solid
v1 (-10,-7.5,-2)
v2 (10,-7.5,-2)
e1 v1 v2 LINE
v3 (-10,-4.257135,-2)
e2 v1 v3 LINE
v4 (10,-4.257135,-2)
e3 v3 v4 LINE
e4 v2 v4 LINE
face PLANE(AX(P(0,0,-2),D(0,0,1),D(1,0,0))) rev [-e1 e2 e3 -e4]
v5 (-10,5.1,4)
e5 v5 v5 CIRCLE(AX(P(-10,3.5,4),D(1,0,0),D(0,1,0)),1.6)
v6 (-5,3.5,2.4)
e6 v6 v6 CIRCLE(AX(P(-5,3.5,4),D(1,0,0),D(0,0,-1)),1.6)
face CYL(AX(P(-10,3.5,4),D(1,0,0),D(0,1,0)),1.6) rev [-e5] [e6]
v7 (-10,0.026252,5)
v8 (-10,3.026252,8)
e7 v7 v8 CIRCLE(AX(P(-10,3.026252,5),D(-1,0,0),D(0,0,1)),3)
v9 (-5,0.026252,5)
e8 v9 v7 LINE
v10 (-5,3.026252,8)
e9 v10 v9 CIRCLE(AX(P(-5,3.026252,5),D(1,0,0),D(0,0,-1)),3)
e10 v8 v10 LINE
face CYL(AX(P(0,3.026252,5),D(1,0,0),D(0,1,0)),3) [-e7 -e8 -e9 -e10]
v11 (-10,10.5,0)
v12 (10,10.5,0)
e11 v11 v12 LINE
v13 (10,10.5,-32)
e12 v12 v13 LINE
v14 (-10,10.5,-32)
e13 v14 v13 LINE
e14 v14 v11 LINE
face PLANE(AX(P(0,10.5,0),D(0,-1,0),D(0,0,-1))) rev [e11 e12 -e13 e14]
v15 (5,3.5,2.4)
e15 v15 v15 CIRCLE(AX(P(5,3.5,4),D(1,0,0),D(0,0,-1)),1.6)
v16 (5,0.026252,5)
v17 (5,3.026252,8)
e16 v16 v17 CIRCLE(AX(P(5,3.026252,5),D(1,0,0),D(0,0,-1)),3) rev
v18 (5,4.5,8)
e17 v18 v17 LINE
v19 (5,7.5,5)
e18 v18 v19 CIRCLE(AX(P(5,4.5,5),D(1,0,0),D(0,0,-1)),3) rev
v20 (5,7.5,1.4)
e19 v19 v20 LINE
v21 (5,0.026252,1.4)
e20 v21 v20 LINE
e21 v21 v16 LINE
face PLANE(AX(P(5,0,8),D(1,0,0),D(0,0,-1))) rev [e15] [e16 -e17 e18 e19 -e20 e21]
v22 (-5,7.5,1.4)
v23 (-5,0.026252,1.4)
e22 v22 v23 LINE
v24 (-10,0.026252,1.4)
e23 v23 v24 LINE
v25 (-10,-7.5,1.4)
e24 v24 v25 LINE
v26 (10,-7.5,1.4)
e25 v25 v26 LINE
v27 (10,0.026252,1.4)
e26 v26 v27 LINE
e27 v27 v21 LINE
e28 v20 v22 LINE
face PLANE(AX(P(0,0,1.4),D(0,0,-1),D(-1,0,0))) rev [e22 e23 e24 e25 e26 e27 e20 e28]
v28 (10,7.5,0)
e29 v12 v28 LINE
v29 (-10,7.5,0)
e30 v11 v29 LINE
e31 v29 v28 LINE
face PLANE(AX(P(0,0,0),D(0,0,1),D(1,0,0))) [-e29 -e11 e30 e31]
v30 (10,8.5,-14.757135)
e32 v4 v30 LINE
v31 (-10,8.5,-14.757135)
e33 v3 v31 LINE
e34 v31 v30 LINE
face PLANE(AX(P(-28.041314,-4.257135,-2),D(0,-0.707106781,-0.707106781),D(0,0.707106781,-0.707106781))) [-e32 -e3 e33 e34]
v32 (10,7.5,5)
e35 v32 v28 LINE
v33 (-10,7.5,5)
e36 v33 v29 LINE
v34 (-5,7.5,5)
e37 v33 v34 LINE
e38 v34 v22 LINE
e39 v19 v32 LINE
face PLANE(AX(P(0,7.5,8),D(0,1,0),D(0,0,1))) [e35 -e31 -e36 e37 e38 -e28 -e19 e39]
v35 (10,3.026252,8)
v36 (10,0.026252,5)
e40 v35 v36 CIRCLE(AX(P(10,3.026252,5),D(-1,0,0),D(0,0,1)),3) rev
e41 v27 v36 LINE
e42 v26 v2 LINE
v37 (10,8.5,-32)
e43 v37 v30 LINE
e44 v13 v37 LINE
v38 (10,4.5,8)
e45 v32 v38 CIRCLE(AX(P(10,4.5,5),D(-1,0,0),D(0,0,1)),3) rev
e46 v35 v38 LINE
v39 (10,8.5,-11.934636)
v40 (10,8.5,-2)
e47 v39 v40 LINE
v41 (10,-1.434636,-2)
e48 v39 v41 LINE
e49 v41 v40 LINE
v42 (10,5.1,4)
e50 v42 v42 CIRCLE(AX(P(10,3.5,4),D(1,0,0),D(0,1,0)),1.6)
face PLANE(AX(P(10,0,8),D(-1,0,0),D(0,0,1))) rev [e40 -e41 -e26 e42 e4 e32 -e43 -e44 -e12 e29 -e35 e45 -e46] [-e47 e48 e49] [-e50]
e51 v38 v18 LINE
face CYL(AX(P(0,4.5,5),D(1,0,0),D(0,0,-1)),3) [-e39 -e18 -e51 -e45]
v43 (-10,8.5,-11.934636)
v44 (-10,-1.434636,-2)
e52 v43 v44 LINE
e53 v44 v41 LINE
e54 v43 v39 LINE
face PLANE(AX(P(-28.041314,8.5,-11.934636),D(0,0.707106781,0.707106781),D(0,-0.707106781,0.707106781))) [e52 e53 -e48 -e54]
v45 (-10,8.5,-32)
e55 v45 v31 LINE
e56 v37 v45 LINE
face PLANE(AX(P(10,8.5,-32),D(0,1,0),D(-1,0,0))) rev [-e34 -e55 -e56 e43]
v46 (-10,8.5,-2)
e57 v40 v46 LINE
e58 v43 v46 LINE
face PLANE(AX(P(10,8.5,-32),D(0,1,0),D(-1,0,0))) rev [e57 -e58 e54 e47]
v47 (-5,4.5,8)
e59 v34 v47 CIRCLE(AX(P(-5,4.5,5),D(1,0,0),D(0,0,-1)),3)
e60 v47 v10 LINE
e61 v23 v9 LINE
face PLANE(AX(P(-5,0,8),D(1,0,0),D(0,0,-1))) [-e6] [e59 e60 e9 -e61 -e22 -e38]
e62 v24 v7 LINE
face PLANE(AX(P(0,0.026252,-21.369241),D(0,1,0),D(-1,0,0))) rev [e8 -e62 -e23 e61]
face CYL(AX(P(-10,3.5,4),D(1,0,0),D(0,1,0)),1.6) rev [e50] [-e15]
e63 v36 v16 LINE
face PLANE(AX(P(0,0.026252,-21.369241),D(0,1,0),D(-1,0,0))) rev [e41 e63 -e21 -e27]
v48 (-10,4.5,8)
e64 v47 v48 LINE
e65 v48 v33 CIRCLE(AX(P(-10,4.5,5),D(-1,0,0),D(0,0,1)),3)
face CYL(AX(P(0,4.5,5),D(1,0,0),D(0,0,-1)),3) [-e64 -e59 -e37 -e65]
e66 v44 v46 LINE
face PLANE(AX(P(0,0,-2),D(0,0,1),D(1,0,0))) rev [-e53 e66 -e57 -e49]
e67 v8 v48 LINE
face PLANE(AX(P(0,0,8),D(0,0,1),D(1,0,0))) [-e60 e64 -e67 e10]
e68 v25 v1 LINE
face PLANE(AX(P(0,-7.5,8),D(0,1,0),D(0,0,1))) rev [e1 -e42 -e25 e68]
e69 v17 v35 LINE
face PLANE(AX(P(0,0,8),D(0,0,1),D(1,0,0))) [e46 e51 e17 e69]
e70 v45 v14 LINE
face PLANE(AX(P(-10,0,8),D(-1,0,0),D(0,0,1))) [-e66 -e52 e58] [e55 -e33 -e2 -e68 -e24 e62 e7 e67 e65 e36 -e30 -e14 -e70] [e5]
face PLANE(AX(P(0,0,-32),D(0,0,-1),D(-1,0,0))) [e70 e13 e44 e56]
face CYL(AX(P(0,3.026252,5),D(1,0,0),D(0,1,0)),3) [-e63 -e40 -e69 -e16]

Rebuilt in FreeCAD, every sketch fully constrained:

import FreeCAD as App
import Part
import Sketcher
Q = App.Units.Quantity


def edges_at(feature, points):
    """Names of the edges that pass closest to the given points."""
    edges = feature.Shape.Edges
    near = lambda p: min(range(len(edges)), key=lambda i: edges[i].distToShape(Part.Vertex(*p))[0])
    return sorted({f"Edge{near(p) + 1}" for p in points})

doc = App.newDocument("Part")
body = doc.addObject("PartDesign::Body", "Body")

# Sketch on XY plane
sketch1 = doc.addObject("Sketcher::SketchObject", "Sketch")
body.addObject(sketch1)
sketch1.AttachmentSupport = (doc.XY_Plane, [""])
sketch1.MapMode = "FlatFace"
sketch1.addGeometry([
    Part.LineSegment(App.Vector(-10, 8, 0), App.Vector(-10, -8, 0)),  # 0
    Part.LineSegment(App.Vector(-10, -8, 0), App.Vector(10, -8, 0)),  # 1
    Part.LineSegment(App.Vector(10, -8, 0), App.Vector(10, 8, 0)),  # 2
    Part.LineSegment(App.Vector(10, 8, 0), App.Vector(5, 8, 0)),  # 3
    Part.LineSegment(App.Vector(5, 8, 0), App.Vector(5, 0, 0)),  # 4
    Part.LineSegment(App.Vector(5, 0, 0), App.Vector(-5, 0, 0)),  # 5
    Part.LineSegment(App.Vector(-5, 0, 0), App.Vector(-5, 8, 0)),  # 6
    Part.LineSegment(App.Vector(-5, 8, 0), App.Vector(-10, 8, 0)),  # 7
], False)
sketch1.addConstraint([
    Sketcher.Constraint("Coincident", 0, 2, 1, 1),
    Sketcher.Constraint("Coincident", 1, 2, 2, 1),
    Sketcher.Constraint("Coincident", 2, 2, 3, 1),
    Sketcher.Constraint("Coincident", 3, 2, 4, 1),
    Sketcher.Constraint("Coincident", 4, 2, 5, 1),
    Sketcher.Constraint("Coincident", 5, 2, 6, 1),
    Sketcher.Constraint("Coincident", 6, 2, 7, 1),
    Sketcher.Constraint("Coincident", 7, 2, 0, 1),
    Sketcher.Constraint("Vertical", 0),
    Sketcher.Constraint("Horizontal", 1),
    Sketcher.Constraint("Vertical", 2),
    Sketcher.Constraint("Horizontal", 3),
    Sketcher.Constraint("Vertical", 4),
    Sketcher.Constraint("Horizontal", 5),
    Sketcher.Constraint("Vertical", 6),
    Sketcher.Constraint("Horizontal", 7),
    Sketcher.Constraint("Symmetric", 0, 2, 2, 2, -1, 1),
    Sketcher.Constraint("Symmetric", 4, 2, 5, 2, -1, 1),
    Sketcher.Constraint("Horizontal", 3, 2, 6, 2),
    Sketcher.Constraint("DistanceX", 1, 1, 1, 2, Q("20 mm")),
    Sketcher.Constraint("DistanceX", 3, 2, 3, 1, Q("5 mm")),
    Sketcher.Constraint("DistanceY", 0, 2, 0, 1, Q("15 mm")),
])
pad1 = doc.addObject("PartDesign::Pad", "Pad")
body.addObject(pad1)
pad1.Profile = sketch1
pad1.Length = 8

# Sketch on XY plane
sketch2 = doc.addObject("Sketcher::SketchObject", "Sketch001")
body.addObject(sketch2)
sketch2.AttachmentSupport = (doc.XY_Plane, [""])
sketch2.MapMode = "FlatFace"
sketch2.addGeometry([
    Part.LineSegment(App.Vector(-10, 8, 0), App.Vector(-10, -8, 0)),
    Part.LineSegment(App.Vector(-10, -8, 0), App.Vector(10, -8, 0)),
    Part.LineSegment(App.Vector(10, -8, 0), App.Vector(10, 8, 0)),
    Part.LineSegment(App.Vector(10, 8, 0), App.Vector(-10, 8, 0)),
], False)
sketch2.addConstraint([
    Sketcher.Constraint("Coincident", 0, 2, 1, 1),
    Sketcher.Constraint("Coincident", 1, 2, 2, 1),
    Sketcher.Constraint("Coincident", 2, 2, 3, 1),
    Sketcher.Constraint("Coincident", 3, 2, 0, 1),
    Sketcher.Constraint("Vertical", 0),
    Sketcher.Constraint("Horizontal", 1),
    Sketcher.Constraint("Vertical", 2),
    Sketcher.Constraint("Horizontal", 3),
    Sketcher.Constraint("Symmetric", 0, 2, 2, 2, -1, 1),
    Sketcher.Constraint("DistanceX", 1, 1, 1, 2, Q("20 mm")),
    Sketcher.Constraint("DistanceY", 0, 2, 0, 1, Q("15 mm")),
])
pad2 = doc.addObject("PartDesign::Pad", "Pad001")
body.addObject(pad2)
pad2.Profile = sketch2
pad2.Length = 2
pad2.Reversed = True

# Sketch on YZ plane
sketch3 = doc.addObject("Sketcher::SketchObject", "Sketch002")
body.addObject(sketch3)
sketch3.AttachmentSupport = (doc.YZ_Plane, [""])
sketch3.MapMode = "FlatFace"
sketch3.AttachmentOffset = App.Placement(App.Vector(0, 0, 10), App.Rotation())
sketch3.addGeometry(Part.Circle(App.Vector(3.5, 4, 0), App.Vector(0, 0, 1), 1.6), False)
sketch3.addConstraint([
    Sketcher.Constraint("Diameter", 0, Q("3.2 mm")),
    Sketcher.Constraint("DistanceY", -1, 1, 0, 3, Q("4 mm")),
    Sketcher.Constraint("DistanceX", -1, 1, 0, 3, Q("3.5 mm")),
])
pocket1 = doc.addObject("PartDesign::Pocket", "Pocket")
body.addObject(pocket1)
pocket1.Profile = sketch3
pocket1.Type = "ThroughAll"

# Sketch on XY plane
sketch4 = doc.addObject("Sketcher::SketchObject", "Sketch003")
body.addObject(sketch4)
sketch4.AttachmentSupport = (doc.XY_Plane, [""])
sketch4.MapMode = "FlatFace"
sketch4.AttachmentOffset = App.Placement(App.Vector(0, 0, 8), App.Rotation())
sketch4.addGeometry([
    Part.LineSegment(App.Vector(10, -7.5, 0), App.Vector(10, 0.026, 0)),  # 0
    Part.LineSegment(App.Vector(10, 0.026, 0), App.Vector(5, 0.026, 0)),  # 1
    Part.LineSegment(App.Vector(5, 0.026, 0), App.Vector(5, 0, 0)),  # 2
    Part.LineSegment(App.Vector(5, 0, 0), App.Vector(-5, 0, 0)),  # 3
    Part.LineSegment(App.Vector(-5, 0, 0), App.Vector(-5, 0.026, 0)),  # 4
    Part.LineSegment(App.Vector(-5, 0.026, 0), App.Vector(-10, 0.026, 0)),  # 5
    Part.LineSegment(App.Vector(-10, 0.026, 0), App.Vector(-10, -7.5, 0)),  # 6
    Part.LineSegment(App.Vector(-10, -7.5, 0), App.Vector(10, -7.5, 0)),  # 7
], False)
sketch4.addConstraint([
    Sketcher.Constraint("Coincident", 0, 2, 1, 1),
    Sketcher.Constraint("Coincident", 1, 2, 2, 1),
    Sketcher.Constraint("Coincident", 2, 2, 3, 1),
    Sketcher.Constraint("Coincident", 3, 2, 4, 1),
    Sketcher.Constraint("Coincident", 4, 2, 5, 1),
    Sketcher.Constraint("Coincident", 5, 2, 6, 1),
    Sketcher.Constraint("Coincident", 6, 2, 7, 1),
    Sketcher.Constraint("Coincident", 7, 2, 0, 1),
    Sketcher.Constraint("Vertical", 0),
    Sketcher.Constraint("Horizontal", 1),
    Sketcher.Constraint("Vertical", 2),
    Sketcher.Constraint("Horizontal", 3),
    Sketcher.Constraint("Vertical", 4),
    Sketcher.Constraint("Horizontal", 5),
    Sketcher.Constraint("Vertical", 6),
    Sketcher.Constraint("Horizontal", 7),
    Sketcher.Constraint("Symmetric", 2, 2, 3, 2, -1, 1),
    Sketcher.Constraint("Symmetric", 0, 2, 5, 2, -2),
    Sketcher.Constraint("DistanceX", 1, 2, 1, 1, Q("5 mm")),
    Sketcher.Constraint("DistanceX", 3, 2, 3, 1, Q("10 mm")),
    Sketcher.Constraint("DistanceY", 6, 2, -1, 1, Q("7.5 mm")),
    Sketcher.Constraint("DistanceY", 0, 1, 0, 2, Q("7.526252 mm")),
])
pocket2 = doc.addObject("PartDesign::Pocket", "Pocket001")
body.addObject(pocket2)
pocket2.Profile = sketch4
pocket2.Length = 8
doc.recompute()

fillet = doc.addObject("PartDesign::Fillet", "Fillet")
body.addObject(fillet)
fillet.Base = (pocket2, edges_at(pocket2, [
    (-7.5, 7.5, 8),
    (7.5, 0.026, 8),
    (7.5, 7.5, 8),
    (-7.5, 0.026, 8),
]))
fillet.Radius = 3

# Sketch on XZ plane
sketch5 = doc.addObject("Sketcher::SketchObject", "Sketch004")
body.addObject(sketch5)
sketch5.AttachmentSupport = (doc.XZ_Plane, [""])
sketch5.MapMode = "FlatFace"
sketch5.AttachmentOffset = App.Placement(App.Vector(0, 0, -7.5), App.Rotation())
sketch5.addGeometry([
    Part.LineSegment(App.Vector(10, 0, 0), App.Vector(10, -2, 0)),
    Part.LineSegment(App.Vector(10, -2, 0), App.Vector(-10, -2, 0)),
    Part.LineSegment(App.Vector(-10, -2, 0), App.Vector(-10, 0, 0)),
    Part.LineSegment(App.Vector(-10, 0, 0), App.Vector(10, 0, 0)),
], False)
sketch5.addConstraint([
    Sketcher.Constraint("Coincident", 0, 2, 1, 1),
    Sketcher.Constraint("Coincident", 1, 2, 2, 1),
    Sketcher.Constraint("Coincident", 2, 2, 3, 1),
    Sketcher.Constraint("Coincident", 3, 2, 0, 1),
    Sketcher.Constraint("Vertical", 0),
    Sketcher.Constraint("Horizontal", 1),
    Sketcher.Constraint("Vertical", 2),
    Sketcher.Constraint("Horizontal", 3),
    Sketcher.Constraint("Symmetric", 2, 2, 3, 2, -1, 1),
    Sketcher.Constraint("DistanceX", 1, 2, 1, 1, Q("20 mm")),
    Sketcher.Constraint("DistanceY", 0, 2, 0, 1, Q("2 mm")),
])
pad3 = doc.addObject("PartDesign::Pad", "Pad002")
body.addObject(pad3)
pad3.Profile = sketch5
pad3.Length = 3
pad3.Reversed = True

# Sketch on XY plane
sketch6 = doc.addObject("Sketcher::SketchObject", "Sketch005")
body.addObject(sketch6)
sketch6.AttachmentSupport = (doc.XY_Plane, [""])
sketch6.MapMode = "FlatFace"
sketch6.AttachmentOffset = App.Placement(App.Vector(0, 0, -2), App.Rotation())
sketch6.addGeometry([
    Part.LineSegment(App.Vector(10, 10.5, 0), App.Vector(10, 8.5, 0)),
    Part.LineSegment(App.Vector(10, 8.5, 0), App.Vector(-10, 8.5, 0)),
    Part.LineSegment(App.Vector(-10, 8.5, 0), App.Vector(-10, 10.5, 0)),
    Part.LineSegment(App.Vector(-10, 10.5, 0), App.Vector(10, 10.5, 0)),
], False)
sketch6.addConstraint([
    Sketcher.Constraint("Coincident", 0, 2, 1, 1),
    Sketcher.Constraint("Coincident", 1, 2, 2, 1),
    Sketcher.Constraint("Coincident", 2, 2, 3, 1),
    Sketcher.Constraint("Coincident", 3, 2, 0, 1),
    Sketcher.Constraint("Vertical", 0),
    Sketcher.Constraint("Horizontal", 1),
    Sketcher.Constraint("Vertical", 2),
    Sketcher.Constraint("Horizontal", 3),
    Sketcher.Constraint("DistanceX", 1, 2, 1, 1, Q("20 mm")),
    Sketcher.Constraint("DistanceY", 0, 2, 0, 1, Q("2 mm")),
    Sketcher.Constraint("DistanceX", -1, 1, 0, 2, Q("10 mm")),
    Sketcher.Constraint("DistanceY", -1, 1, 0, 2, Q("8.5 mm")),
])
pad4 = doc.addObject("PartDesign::Pad", "Pad003")
body.addObject(pad4)
pad4.Profile = sketch6
pad4.Length = 30
pad4.Reversed = True

# Sketch on YZ plane
sketch7 = doc.addObject("Sketcher::SketchObject", "Sketch006")
body.addObject(sketch7)
sketch7.AttachmentSupport = (doc.YZ_Plane, [""])
sketch7.MapMode = "FlatFace"
sketch7.AttachmentOffset = App.Placement(App.Vector(0, 0, 10), App.Rotation())
sketch7.addGeometry([
    Part.LineSegment(App.Vector(8.5, -14.8, 0), App.Vector(8.5, -11.9, 0)),
    Part.LineSegment(App.Vector(8.5, -11.9, 0), App.Vector(-1.4, -2, 0)),
    Part.LineSegment(App.Vector(-1.4, -2, 0), App.Vector(-4.3, -2, 0)),
    Part.LineSegment(App.Vector(-4.3, -2, 0), App.Vector(8.5, -14.8, 0)),
], False)
sketch7.addConstraint([
    Sketcher.Constraint("Coincident", 0, 2, 1, 1),
    Sketcher.Constraint("Coincident", 1, 2, 2, 1),
    Sketcher.Constraint("Coincident", 2, 2, 3, 1),
    Sketcher.Constraint("Coincident", 3, 2, 0, 1),
    Sketcher.Constraint("Vertical", 0),
    Sketcher.Constraint("Horizontal", 2),
    Sketcher.Constraint("Parallel", 1, 3),
    Sketcher.Constraint("Equal", 2, 0),
    Sketcher.Constraint("DistanceY", 1, 2, -1, 1, Q("2 mm")),
    Sketcher.Constraint("DistanceX", -1, 1, 0, 2, Q("8.5 mm")),
    Sketcher.Constraint("DistanceX", 2, 2, 2, 1, Q("2.822499 mm")),
    Sketcher.Constraint("Distance", 1, Q("14.049697 mm")),
])
pad5 = doc.addObject("PartDesign::Pad", "Pad004")
body.addObject(pad5)
pad5.Profile = sketch7
pad5.Length = 20
pad5.Reversed = True

# Sketch on XY plane
sketch8 = doc.addObject("Sketcher::SketchObject", "Sketch007")
body.addObject(sketch8)
sketch8.AttachmentSupport = (doc.XY_Plane, [""])
sketch8.MapMode = "FlatFace"
sketch8.addGeometry([
    Part.LineSegment(App.Vector(5, 8, 0), App.Vector(-5, 8, 0)),  # 0
    Part.LineSegment(App.Vector(-5, 8, 0), App.Vector(-5, 0, 0)),  # 1
    Part.LineSegment(App.Vector(-5, 0, 0), App.Vector(-10, 0, 0)),  # 2
    Part.LineSegment(App.Vector(-10, 0, 0), App.Vector(-10, -8, 0)),  # 3
    Part.LineSegment(App.Vector(-10, -8, 0), App.Vector(10, -8, 0)),  # 4
    Part.LineSegment(App.Vector(10, -8, 0), App.Vector(10, 0, 0)),  # 5
    Part.LineSegment(App.Vector(10, 0, 0), App.Vector(5, 0, 0)),  # 6
    Part.LineSegment(App.Vector(5, 0, 0), App.Vector(5, 8, 0)),  # 7
], False)
sketch8.addConstraint([
    Sketcher.Constraint("Coincident", 0, 2, 1, 1),
    Sketcher.Constraint("Coincident", 1, 2, 2, 1),
    Sketcher.Constraint("Coincident", 2, 2, 3, 1),
    Sketcher.Constraint("Coincident", 3, 2, 4, 1),
    Sketcher.Constraint("Coincident", 4, 2, 5, 1),
    Sketcher.Constraint("Coincident", 5, 2, 6, 1),
    Sketcher.Constraint("Coincident", 6, 2, 7, 1),
    Sketcher.Constraint("Coincident", 7, 2, 0, 1),
    Sketcher.Constraint("Horizontal", 0),
    Sketcher.Constraint("Vertical", 1),
    Sketcher.Constraint("Horizontal", 2),
    Sketcher.Constraint("Vertical", 3),
    Sketcher.Constraint("Horizontal", 4),
    Sketcher.Constraint("Vertical", 5),
    Sketcher.Constraint("Horizontal", 6),
    Sketcher.Constraint("Vertical", 7),
    Sketcher.Constraint("Symmetric", 2, 2, 5, 2, -2),
    Sketcher.Constraint("Equal", 2, 6),
    Sketcher.Constraint("DistanceX", 0, 2, 0, 1, Q("10 mm")),
    Sketcher.Constraint("DistanceX", 2, 2, 2, 1, Q("5 mm")),
    Sketcher.Constraint("DistanceY", 3, 2, 0, 2, Q("15 mm")),
    Sketcher.Constraint("DistanceY", -1, 1, 0, 2, Q("7.5 mm")),
    Sketcher.Constraint("DistanceY", 1, 2, 1, 1, Q("7.473748 mm")),
])
pad6 = doc.addObject("PartDesign::Pad", "Pad005")
body.addObject(pad6)
pad6.Profile = sketch8
pad6.Length = 1.4

doc.recompute()
